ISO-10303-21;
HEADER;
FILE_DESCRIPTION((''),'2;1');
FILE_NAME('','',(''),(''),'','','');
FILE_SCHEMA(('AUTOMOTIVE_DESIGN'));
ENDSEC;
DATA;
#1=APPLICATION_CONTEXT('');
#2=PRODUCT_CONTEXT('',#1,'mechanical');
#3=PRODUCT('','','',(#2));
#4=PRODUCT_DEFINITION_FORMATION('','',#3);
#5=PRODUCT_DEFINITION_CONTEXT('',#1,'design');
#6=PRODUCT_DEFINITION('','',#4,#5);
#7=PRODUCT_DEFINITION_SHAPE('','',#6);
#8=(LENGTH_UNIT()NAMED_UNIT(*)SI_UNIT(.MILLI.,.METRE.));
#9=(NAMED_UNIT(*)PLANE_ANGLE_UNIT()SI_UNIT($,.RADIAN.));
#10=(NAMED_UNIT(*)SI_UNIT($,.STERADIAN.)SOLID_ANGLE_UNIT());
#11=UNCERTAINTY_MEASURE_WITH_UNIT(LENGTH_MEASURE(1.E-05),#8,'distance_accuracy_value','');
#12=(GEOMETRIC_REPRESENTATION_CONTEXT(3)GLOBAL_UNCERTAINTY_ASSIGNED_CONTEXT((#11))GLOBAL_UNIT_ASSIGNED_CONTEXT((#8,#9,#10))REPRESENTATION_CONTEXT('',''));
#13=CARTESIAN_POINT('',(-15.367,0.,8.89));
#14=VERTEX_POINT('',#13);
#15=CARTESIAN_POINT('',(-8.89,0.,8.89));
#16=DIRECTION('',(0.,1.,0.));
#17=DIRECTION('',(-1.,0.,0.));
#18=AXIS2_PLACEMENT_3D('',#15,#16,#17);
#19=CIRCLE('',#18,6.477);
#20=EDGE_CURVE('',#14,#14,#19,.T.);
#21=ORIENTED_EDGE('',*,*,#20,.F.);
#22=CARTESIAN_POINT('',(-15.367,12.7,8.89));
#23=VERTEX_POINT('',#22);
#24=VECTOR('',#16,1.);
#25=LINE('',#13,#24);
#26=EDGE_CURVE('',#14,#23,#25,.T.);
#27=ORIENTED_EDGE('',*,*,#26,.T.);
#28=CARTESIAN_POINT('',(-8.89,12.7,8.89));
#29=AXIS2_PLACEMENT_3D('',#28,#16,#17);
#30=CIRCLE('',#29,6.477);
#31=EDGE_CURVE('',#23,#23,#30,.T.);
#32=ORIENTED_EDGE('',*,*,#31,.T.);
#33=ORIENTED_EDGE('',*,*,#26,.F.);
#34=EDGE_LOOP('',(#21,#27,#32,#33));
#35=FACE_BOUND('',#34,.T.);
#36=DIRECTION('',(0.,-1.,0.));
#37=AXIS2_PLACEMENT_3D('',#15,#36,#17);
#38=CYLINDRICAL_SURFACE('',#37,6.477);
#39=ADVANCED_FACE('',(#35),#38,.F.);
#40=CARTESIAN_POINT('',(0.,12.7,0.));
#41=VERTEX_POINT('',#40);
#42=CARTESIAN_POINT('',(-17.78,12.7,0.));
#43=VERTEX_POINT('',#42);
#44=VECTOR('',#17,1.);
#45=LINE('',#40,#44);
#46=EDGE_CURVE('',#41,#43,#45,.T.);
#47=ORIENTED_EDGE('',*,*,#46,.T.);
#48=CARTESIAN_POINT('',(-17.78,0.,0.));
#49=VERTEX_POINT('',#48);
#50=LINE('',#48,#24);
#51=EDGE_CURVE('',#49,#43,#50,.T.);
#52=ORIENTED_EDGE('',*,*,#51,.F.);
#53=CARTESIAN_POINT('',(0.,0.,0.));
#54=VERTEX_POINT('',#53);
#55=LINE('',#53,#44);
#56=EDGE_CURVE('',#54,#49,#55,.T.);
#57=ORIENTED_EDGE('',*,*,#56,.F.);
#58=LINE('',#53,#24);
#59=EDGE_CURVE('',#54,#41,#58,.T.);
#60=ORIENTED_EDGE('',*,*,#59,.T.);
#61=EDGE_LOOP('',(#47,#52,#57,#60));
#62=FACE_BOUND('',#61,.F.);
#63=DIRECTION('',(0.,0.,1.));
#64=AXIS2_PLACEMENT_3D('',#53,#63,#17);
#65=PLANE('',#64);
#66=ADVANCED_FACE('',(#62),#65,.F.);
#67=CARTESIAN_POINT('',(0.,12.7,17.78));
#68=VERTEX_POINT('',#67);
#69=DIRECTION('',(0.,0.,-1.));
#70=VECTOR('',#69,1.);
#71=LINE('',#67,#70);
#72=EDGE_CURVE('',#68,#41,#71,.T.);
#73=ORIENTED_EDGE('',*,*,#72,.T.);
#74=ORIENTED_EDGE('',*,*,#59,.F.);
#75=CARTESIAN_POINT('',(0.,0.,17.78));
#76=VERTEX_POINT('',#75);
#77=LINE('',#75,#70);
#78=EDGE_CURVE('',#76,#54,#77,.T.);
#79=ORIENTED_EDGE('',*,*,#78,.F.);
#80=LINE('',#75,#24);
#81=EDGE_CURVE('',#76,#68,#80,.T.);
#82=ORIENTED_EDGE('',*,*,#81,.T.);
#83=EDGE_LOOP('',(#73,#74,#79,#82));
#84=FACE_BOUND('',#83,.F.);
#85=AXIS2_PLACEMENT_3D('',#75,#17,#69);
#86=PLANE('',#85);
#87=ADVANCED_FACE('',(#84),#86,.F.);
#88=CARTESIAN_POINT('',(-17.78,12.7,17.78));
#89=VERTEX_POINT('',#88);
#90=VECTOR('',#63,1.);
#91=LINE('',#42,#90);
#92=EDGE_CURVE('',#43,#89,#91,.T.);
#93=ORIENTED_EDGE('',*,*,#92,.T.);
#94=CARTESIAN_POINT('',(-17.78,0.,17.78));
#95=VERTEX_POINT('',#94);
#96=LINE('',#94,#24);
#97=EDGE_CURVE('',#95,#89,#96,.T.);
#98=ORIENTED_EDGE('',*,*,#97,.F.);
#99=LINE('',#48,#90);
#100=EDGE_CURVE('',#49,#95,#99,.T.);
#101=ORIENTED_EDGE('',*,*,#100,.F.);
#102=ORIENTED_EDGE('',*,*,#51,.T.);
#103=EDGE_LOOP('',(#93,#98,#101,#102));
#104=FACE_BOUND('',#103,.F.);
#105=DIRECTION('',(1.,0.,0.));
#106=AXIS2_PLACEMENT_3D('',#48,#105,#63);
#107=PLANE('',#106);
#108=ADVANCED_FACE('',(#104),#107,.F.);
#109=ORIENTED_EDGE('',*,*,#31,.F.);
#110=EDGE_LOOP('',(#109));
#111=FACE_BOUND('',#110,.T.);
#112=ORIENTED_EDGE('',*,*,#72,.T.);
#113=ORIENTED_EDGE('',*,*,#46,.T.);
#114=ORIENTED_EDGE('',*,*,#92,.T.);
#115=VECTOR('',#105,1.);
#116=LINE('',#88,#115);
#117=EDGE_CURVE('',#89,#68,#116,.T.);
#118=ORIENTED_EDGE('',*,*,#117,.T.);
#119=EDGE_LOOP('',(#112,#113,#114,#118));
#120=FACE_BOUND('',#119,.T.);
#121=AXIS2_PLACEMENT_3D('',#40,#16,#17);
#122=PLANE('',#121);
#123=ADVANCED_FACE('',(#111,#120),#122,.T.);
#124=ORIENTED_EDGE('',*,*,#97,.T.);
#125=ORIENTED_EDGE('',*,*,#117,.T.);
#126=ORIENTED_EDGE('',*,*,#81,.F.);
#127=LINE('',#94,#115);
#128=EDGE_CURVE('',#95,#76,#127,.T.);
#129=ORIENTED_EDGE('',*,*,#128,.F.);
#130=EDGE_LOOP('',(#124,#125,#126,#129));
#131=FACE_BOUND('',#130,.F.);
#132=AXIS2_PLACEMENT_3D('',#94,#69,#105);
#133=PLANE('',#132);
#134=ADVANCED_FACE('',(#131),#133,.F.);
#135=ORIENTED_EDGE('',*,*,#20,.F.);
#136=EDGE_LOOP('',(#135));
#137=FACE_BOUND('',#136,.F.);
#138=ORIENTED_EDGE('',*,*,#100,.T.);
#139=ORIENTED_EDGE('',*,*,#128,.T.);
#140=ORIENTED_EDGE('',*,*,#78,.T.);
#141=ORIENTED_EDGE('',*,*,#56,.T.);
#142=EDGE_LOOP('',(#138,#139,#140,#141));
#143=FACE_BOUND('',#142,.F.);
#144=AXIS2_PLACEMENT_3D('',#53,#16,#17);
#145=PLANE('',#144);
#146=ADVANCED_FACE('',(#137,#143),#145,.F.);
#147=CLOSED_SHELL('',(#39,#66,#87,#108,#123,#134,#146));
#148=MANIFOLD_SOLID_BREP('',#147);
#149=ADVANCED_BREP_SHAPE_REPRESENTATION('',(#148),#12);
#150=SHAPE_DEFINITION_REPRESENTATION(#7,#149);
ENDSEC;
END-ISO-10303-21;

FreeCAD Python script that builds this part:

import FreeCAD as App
import Part
import Sketcher

V = App.Vector
Q = App.Units.Quantity


def add_polygon(sketch, points):
    """Adds a closed chain of lines whose ends are joined by coincident constraints."""
    first, n = sketch.GeometryCount, len(points)
    for a, b in zip(points, points[1:] + points[:1]):
        sketch.addGeometry(Part.LineSegment(App.Vector(*a, 0), App.Vector(*b, 0)), False)
    for i in range(n):
        sketch.addConstraint(Sketcher.Constraint("Coincident", first + i, 2, first + (i + 1) % n, 1))

doc = App.newDocument("Part")
params = doc.addObject("Spreadsheet::Sheet", "Params")
for row, (alias, value) in enumerate([
    ("sketch1_diameter", "0.51 in"),
    ("sketch1_width", "0.7 in"),
    ("pad1_length", "0.5 in"),
], start=1):
    params.set(f"A{row}", alias)
    params.set(f"B{row}", "=" + value)
    params.setAlias(f"B{row}", alias)

body = doc.addObject("PartDesign::Body", "Body")

sketch1 = doc.addObject("Sketcher::SketchObject", "Sketch")
body.addObject(sketch1)
sketch1.AttachmentSupport = (doc.XZ_Plane, [""])
sketch1.MapMode = "FlatFace"
add_polygon(sketch1, [(0, 18), (0, 0), (-18, 0), (-18, 18)])
sketch1.addGeometry(Part.Circle(V(-9, 9, 0), V(0, 0, 1), 6), False)
sketch1.addConstraint(Sketcher.Constraint("Vertical", 0))
sketch1.addConstraint(Sketcher.Constraint("Horizontal", 1))
sketch1.addConstraint(Sketcher.Constraint("Vertical", 2))
sketch1.addConstraint(Sketcher.Constraint("Horizontal", 3))
sketch1.addConstraint(Sketcher.Constraint("Coincident", 0, 2, -1, 1))
sketch1.addConstraint(Sketcher.Constraint("Equal", 3, 0))
sketch1.addConstraint(Sketcher.Constraint("Diameter", 4, Q("0.51 in")))
sketch1.addConstraint(Sketcher.Constraint("DistanceX", 1, 2, 1, 1, Q("0.7 in")))
sketch1.addConstraint(Sketcher.Constraint("DistanceX", 4, 3, -1, 1, Q("0.35 in")))
sketch1.addConstraint(Sketcher.Constraint("DistanceY", -1, 1, 4, 3, Q("0.35 in")))
sketch1.setExpression("Constraints[10]", "Params.sketch1_diameter")
sketch1.setExpression("Constraints[11]", "Params.sketch1_width")
pad1 = doc.addObject("PartDesign::Pad", "Pad")
body.addObject(pad1)
pad1.Profile = sketch1
pad1.setExpression("Length", "Params.pad1_length")
pad1.Reversed = True

doc.recompute()
